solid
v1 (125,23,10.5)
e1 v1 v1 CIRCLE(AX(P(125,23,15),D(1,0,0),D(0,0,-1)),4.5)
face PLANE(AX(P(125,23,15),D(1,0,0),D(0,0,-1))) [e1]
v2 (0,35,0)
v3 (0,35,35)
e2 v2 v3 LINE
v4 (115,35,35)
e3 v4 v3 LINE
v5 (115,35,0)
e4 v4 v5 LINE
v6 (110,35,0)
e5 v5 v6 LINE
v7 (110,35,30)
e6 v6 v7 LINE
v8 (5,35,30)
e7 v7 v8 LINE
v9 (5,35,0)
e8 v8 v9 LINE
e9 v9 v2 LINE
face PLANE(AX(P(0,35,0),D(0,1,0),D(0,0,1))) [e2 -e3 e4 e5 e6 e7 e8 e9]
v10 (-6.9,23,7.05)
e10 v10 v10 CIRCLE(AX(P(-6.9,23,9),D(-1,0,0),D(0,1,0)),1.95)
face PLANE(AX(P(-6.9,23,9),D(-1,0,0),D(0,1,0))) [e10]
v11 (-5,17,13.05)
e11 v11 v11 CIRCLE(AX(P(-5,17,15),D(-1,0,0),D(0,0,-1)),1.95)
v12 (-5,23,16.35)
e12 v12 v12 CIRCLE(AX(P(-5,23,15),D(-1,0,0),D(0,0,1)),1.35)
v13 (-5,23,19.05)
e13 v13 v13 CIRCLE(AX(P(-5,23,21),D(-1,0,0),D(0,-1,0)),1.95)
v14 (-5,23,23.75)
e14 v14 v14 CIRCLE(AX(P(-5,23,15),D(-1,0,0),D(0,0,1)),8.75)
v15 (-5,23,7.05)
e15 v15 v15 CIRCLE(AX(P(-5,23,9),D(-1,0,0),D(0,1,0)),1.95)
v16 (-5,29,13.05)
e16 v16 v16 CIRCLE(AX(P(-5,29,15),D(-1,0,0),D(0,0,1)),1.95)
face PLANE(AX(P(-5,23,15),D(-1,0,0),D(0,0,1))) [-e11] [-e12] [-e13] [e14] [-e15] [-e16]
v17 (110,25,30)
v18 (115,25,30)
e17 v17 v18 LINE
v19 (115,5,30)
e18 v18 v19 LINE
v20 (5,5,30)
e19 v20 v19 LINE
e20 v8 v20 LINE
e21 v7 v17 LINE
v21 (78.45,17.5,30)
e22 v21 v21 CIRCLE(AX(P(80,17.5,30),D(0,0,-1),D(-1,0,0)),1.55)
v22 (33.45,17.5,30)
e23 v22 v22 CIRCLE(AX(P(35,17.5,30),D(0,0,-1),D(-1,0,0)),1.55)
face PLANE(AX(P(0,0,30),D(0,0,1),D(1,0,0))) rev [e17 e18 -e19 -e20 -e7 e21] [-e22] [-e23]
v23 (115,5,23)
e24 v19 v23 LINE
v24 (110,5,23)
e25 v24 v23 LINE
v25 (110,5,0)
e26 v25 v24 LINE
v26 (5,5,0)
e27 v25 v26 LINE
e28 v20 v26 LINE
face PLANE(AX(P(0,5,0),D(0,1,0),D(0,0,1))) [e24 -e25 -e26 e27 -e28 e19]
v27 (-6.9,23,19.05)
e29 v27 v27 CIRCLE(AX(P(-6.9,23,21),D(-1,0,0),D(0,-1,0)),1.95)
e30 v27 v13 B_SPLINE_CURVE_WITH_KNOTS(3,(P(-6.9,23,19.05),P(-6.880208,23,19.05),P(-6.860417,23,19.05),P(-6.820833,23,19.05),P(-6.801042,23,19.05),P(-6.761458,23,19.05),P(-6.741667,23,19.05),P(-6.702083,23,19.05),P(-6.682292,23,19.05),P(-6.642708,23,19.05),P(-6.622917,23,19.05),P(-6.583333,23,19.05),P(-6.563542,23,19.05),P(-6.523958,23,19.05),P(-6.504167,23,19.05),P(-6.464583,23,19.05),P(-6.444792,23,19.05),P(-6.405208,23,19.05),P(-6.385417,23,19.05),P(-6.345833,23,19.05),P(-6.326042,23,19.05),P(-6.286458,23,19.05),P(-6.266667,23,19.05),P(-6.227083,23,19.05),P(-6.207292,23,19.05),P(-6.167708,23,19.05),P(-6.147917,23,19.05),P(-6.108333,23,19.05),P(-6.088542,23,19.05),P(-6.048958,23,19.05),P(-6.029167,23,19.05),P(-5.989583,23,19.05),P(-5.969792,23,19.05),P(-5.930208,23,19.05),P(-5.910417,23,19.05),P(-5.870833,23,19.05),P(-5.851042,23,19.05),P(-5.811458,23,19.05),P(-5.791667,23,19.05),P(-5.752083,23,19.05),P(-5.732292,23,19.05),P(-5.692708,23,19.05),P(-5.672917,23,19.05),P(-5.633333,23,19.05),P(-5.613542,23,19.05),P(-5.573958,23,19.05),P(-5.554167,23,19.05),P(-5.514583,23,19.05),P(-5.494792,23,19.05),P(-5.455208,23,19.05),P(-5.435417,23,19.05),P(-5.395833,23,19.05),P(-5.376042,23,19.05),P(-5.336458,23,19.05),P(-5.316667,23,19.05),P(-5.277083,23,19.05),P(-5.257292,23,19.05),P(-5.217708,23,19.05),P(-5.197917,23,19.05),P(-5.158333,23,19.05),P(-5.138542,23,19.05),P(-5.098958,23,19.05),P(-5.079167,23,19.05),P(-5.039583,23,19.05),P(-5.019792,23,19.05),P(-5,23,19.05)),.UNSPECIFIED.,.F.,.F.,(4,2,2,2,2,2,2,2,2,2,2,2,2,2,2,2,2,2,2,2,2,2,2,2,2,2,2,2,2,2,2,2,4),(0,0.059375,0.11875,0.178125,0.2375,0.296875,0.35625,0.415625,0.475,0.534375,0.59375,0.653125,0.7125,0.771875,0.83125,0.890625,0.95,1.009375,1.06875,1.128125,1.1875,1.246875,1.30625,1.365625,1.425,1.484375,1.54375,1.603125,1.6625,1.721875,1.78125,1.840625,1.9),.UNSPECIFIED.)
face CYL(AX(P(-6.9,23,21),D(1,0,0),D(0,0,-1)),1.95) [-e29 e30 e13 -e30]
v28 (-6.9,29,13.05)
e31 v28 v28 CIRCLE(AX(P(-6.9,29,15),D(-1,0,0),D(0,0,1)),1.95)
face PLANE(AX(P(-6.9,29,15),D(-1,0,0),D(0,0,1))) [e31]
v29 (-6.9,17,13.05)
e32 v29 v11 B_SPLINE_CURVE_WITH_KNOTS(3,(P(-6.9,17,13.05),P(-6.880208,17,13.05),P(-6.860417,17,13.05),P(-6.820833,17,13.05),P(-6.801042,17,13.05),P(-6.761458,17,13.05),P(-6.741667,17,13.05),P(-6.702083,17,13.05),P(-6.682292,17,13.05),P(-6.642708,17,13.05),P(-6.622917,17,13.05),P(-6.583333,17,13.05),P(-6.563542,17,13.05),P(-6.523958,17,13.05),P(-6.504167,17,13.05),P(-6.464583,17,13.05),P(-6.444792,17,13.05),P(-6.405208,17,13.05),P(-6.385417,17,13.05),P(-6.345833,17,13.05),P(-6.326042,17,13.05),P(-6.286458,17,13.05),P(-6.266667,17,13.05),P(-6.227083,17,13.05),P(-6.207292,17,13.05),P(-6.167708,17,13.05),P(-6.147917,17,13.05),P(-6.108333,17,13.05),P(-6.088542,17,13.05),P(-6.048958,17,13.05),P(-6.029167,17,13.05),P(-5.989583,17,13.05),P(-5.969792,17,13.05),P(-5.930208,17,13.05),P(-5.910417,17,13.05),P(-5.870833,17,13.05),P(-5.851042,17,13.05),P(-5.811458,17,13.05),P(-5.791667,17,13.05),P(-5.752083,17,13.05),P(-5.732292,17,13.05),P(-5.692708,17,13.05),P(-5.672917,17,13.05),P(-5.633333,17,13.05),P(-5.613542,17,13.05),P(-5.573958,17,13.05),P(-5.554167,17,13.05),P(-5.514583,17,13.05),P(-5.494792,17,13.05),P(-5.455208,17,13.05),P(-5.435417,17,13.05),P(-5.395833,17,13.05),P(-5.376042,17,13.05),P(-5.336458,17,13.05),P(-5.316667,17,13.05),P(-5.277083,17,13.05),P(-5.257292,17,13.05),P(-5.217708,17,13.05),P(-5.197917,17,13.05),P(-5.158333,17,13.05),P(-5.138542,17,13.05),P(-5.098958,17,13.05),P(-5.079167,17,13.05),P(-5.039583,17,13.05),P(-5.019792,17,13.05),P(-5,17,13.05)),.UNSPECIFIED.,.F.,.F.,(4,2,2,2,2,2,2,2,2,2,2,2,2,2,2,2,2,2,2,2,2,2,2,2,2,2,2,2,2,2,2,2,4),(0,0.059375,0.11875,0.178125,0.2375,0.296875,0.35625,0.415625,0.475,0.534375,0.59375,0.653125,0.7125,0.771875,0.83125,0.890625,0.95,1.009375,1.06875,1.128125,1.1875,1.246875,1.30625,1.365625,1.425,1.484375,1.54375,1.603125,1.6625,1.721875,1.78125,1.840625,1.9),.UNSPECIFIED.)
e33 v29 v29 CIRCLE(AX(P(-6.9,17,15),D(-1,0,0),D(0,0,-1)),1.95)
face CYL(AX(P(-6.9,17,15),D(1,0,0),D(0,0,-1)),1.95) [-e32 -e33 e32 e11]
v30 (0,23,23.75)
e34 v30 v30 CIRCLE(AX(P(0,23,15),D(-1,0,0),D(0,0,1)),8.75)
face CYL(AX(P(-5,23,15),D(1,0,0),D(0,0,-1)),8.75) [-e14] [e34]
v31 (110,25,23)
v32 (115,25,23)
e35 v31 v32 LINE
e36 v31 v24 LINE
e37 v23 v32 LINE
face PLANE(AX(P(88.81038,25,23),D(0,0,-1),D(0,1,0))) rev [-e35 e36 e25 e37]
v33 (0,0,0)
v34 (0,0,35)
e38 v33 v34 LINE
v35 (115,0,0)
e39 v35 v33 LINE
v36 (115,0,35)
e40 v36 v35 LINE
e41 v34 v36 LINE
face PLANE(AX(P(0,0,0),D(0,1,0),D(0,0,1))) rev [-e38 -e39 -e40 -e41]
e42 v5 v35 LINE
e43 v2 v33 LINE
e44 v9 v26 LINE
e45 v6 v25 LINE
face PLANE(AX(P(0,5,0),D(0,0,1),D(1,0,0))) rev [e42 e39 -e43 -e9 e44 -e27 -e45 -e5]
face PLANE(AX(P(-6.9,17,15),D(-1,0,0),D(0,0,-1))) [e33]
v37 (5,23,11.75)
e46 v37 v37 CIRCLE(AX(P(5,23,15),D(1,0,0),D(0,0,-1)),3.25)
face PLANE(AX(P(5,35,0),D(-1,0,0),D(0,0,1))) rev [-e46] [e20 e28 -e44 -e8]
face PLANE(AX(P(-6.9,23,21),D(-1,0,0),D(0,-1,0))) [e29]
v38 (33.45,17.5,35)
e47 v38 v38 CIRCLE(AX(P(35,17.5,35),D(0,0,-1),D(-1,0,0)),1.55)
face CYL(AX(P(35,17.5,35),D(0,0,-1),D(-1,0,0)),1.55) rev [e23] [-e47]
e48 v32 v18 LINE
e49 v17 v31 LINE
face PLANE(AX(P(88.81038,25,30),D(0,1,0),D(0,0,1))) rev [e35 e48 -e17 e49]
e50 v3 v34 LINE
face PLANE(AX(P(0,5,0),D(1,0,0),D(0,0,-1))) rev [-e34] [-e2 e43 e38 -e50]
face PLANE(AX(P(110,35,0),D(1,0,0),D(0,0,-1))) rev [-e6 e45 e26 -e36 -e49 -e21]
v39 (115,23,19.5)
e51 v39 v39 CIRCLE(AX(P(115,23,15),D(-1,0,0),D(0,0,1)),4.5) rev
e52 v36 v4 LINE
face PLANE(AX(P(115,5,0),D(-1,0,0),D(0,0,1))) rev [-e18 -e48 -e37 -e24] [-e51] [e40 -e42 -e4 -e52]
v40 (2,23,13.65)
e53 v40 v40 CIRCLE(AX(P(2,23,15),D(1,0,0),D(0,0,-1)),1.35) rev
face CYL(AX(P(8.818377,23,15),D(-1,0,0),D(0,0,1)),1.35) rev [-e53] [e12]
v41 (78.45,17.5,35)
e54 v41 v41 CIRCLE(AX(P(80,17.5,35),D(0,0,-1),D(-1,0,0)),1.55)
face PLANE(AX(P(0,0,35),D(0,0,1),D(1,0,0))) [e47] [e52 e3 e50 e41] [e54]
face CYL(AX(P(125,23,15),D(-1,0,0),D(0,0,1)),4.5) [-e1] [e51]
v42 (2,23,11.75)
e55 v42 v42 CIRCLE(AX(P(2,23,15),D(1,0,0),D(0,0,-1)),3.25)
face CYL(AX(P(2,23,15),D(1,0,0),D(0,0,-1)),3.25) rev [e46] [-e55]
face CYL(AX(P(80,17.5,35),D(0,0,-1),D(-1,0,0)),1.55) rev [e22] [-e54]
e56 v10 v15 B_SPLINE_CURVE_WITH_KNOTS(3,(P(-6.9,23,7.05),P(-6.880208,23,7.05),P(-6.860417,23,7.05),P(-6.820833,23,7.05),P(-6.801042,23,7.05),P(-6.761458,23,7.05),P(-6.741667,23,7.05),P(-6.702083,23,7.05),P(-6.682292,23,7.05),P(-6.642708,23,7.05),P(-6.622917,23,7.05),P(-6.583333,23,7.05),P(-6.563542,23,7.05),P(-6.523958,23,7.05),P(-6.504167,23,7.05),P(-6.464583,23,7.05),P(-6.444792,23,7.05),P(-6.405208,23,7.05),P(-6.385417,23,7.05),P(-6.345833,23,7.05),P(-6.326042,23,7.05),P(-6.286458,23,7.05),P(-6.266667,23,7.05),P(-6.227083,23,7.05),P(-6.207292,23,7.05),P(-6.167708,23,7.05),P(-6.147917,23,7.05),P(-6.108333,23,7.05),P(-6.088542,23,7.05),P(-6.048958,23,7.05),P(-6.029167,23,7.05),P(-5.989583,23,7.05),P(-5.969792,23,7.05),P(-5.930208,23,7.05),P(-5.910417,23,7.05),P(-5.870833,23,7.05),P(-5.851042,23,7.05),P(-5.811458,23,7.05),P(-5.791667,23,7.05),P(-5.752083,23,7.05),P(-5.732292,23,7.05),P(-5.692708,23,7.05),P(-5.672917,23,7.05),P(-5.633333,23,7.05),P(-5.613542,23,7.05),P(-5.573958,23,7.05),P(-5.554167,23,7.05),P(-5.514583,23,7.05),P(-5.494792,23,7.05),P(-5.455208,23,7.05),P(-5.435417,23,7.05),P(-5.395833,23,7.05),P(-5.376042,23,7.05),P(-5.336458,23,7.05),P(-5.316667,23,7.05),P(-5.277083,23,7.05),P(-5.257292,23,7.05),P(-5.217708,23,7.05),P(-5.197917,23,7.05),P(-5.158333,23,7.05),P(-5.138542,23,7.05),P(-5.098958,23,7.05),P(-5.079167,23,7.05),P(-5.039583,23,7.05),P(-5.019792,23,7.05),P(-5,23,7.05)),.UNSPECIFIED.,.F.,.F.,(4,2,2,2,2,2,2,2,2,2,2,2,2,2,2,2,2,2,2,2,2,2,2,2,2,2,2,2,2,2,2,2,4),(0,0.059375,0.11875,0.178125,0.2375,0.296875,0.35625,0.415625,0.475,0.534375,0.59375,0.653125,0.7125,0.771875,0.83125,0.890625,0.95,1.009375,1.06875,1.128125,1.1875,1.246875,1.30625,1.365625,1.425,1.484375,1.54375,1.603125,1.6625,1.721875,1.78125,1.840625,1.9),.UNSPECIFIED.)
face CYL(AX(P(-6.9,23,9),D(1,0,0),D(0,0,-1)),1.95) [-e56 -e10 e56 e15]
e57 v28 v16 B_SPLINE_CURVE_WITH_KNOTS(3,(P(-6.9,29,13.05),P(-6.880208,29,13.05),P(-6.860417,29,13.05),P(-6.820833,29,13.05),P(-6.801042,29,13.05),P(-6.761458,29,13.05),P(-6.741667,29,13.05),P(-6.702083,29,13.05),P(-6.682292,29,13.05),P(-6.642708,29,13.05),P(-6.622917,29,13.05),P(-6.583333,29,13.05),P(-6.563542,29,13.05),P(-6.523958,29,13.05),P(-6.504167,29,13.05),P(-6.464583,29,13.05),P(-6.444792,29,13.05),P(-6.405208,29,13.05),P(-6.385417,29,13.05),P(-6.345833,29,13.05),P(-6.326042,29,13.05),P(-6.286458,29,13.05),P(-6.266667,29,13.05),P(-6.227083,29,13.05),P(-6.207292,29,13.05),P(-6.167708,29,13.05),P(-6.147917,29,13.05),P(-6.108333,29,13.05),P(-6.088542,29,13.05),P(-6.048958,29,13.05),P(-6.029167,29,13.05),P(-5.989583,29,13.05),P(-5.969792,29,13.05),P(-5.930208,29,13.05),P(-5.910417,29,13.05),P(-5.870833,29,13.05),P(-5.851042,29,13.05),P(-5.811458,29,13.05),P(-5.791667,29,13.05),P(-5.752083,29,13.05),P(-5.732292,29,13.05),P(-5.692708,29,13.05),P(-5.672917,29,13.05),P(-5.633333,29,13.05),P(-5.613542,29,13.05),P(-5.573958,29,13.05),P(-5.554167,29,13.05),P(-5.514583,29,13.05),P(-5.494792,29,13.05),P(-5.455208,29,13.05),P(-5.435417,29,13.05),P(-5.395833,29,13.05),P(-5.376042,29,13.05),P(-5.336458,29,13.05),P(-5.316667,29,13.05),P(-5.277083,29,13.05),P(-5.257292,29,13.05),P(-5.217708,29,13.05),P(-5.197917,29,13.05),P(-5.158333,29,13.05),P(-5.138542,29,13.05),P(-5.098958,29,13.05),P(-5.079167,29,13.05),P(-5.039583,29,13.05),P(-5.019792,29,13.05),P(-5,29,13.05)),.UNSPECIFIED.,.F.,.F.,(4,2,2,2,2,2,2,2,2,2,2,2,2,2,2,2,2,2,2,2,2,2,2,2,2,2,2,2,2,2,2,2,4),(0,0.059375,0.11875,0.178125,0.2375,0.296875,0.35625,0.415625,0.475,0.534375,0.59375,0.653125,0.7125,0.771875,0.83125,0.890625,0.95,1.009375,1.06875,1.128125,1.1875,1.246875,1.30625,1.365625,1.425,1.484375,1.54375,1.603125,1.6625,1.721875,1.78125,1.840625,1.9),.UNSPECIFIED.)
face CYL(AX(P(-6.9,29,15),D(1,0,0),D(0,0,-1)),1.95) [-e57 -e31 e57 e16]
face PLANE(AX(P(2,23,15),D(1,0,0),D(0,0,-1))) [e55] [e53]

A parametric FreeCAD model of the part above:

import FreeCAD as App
import Part
import Sketcher

V = App.Vector

doc = App.newDocument("Part")
body = doc.addObject("PartDesign::Body", "Body")

sketch1 = doc.addObject("Sketcher::SketchObject", "Sketch")
body.addObject(sketch1)
sketch1.AttachmentSupport = (doc.XZ_Plane, [""])
sketch1.MapMode = "FlatFace"
sketch1.addGeometry([
    Part.LineSegment(V(0, 0, 0), V(0, 30, 0)),
    Part.LineSegment(V(0, 30, 0), V(115, 30, 0)),
    Part.LineSegment(V(115, 30, 0), V(115, 0, 0)),
    Part.LineSegment(V(115, 0, 0), V(0, 0, 0)),
], False)
sketch1.addConstraint([
    Sketcher.Constraint("Coincident", 0, 2, 1, 1),
    Sketcher.Constraint("Coincident", 1, 2, 2, 1),
    Sketcher.Constraint("Coincident", 2, 2, 3, 1),
    Sketcher.Constraint("Coincident", 3, 2, 0, 1),
    Sketcher.Constraint("Vertical", 0),
    Sketcher.Constraint("Horizontal", 1),
    Sketcher.Constraint("Vertical", 2),
    Sketcher.Constraint("Horizontal", 3),
    Sketcher.Constraint("Coincident", 3, 2, -1, 1),
    Sketcher.Constraint("DistanceX", 1, 1, 1, 2, 115.0),
    Sketcher.Constraint("DistanceY", 0, 1, 0, 2, 30.0),
])
pad1 = doc.addObject("PartDesign::Pad", "Pad")
body.addObject(pad1)
pad1.Profile = sketch1
pad1.Length = 5
pad1.Reversed = True

sketch2 = doc.addObject("Sketcher::SketchObject", "Sketch001")
body.addObject(sketch2)
sketch2.AttachmentSupport = (doc.XZ_Plane, [""])
sketch2.MapMode = "FlatFace"
sketch2.AttachmentOffset = App.Placement(V(0, 0, -5), App.Rotation())
sketch2.addGeometry([
    Part.LineSegment(V(0, 0, 0), V(0, 30, 0)),
    Part.LineSegment(V(0, 30, 0), V(5, 30, 0)),
    Part.LineSegment(V(5, 30, 0), V(5, 0, 0)),
    Part.LineSegment(V(5, 0, 0), V(0, 0, 0)),
    Part.LineSegment(V(110, 0, 0), V(110, 30, 0)),
    Part.LineSegment(V(110, 30, 0), V(115, 30, 0)),
    Part.LineSegment(V(115, 30, 0), V(115, 0, 0)),
    Part.LineSegment(V(115, 0, 0), V(110, 0, 0)),
], False)
sketch2.addConstraint([
    Sketcher.Constraint("Coincident", 0, 2, 1, 1),
    Sketcher.Constraint("Coincident", 1, 2, 2, 1),
    Sketcher.Constraint("Coincident", 2, 2, 3, 1),
    Sketcher.Constraint("Coincident", 3, 2, 0, 1),
    Sketcher.Constraint("Coincident", 4, 2, 5, 1),
    Sketcher.Constraint("Coincident", 5, 2, 6, 1),
    Sketcher.Constraint("Coincident", 6, 2, 7, 1),
    Sketcher.Constraint("Coincident", 7, 2, 4, 1),
    Sketcher.Constraint("Vertical", 0),
    Sketcher.Constraint("Horizontal", 1),
    Sketcher.Constraint("Vertical", 2),
    Sketcher.Constraint("Horizontal", 3),
    Sketcher.Constraint("Vertical", 4),
    Sketcher.Constraint("Horizontal", 5),
    Sketcher.Constraint("Vertical", 6),
    Sketcher.Constraint("Horizontal", 7),
    Sketcher.Constraint("Coincident", 3, 2, -1, 1),
    Sketcher.Constraint("PointOnObject", 6, 2, -1),
    Sketcher.Constraint("Horizontal", 1, 2, 4, 2),
    Sketcher.Constraint("Equal", 3, 5),
    Sketcher.Constraint("DistanceX", 1, 1, 1, 2, 5.0),
    Sketcher.Constraint("DistanceY", 0, 1, 0, 2, 30.0),
    Sketcher.Constraint("DistanceX", -1, 1, 4, 2, 110.0),
])
pad2 = doc.addObject("PartDesign::Pad", "Pad001")
body.addObject(pad2)
pad2.Profile = sketch2
pad2.Length = 30
pad2.Reversed = True

sketch3 = doc.addObject("Sketcher::SketchObject", "Sketch002")
body.addObject(sketch3)
sketch3.AttachmentSupport = (doc.YZ_Plane, [""])
sketch3.MapMode = "FlatFace"
sketch3.addGeometry(Part.Circle(V(23, 15, 0), V(0, 0, 1), 8.75), False)
sketch3.addConstraint([
    Sketcher.Constraint("Diameter", 0, 17.5),
    Sketcher.Constraint("DistanceX", -1, 1, 0, 3, 23.0),
    Sketcher.Constraint("DistanceY", -1, 1, 0, 3, 15.0),
])
pad3 = doc.addObject("PartDesign::Pad", "Pad002")
body.addObject(pad3)
pad3.Profile = sketch3
pad3.Length = 5
pad3.Reversed = True

sketch4 = doc.addObject("Sketcher::SketchObject", "Sketch003")
body.addObject(sketch4)
sketch4.AttachmentSupport = (doc.YZ_Plane, [""])
sketch4.MapMode = "FlatFace"
sketch4.AttachmentOffset = App.Placement(V(0, 0, -5), App.Rotation())
sketch4.addGeometry(Part.Circle(V(29, 15, 0), V(0, 0, 1), 1.95), False)
sketch4.addConstraint([
    Sketcher.Constraint("Diameter", 0, 3.9),
    Sketcher.Constraint("DistanceX", -1, 1, 0, 3, 29.0),
    Sketcher.Constraint("DistanceY", -1, 1, 0, 3, 15.0),
])
pad4 = doc.addObject("PartDesign::Pad", "Pad003")
body.addObject(pad4)
pad4.Profile = sketch4
pad4.Length = 1.9
pad4.Reversed = True
doc.recompute()

datumline = doc.addObject("PartDesign::Line", "DatumLine")
body.addObject(datumline)
datumline.Placement = App.Placement(V(0, 23, 15), App.Rotation(V(0, 0, 1), V(1, 0, 0)))
polarpattern = doc.addObject("PartDesign::PolarPattern", "PolarPattern")
body.addObject(polarpattern)
polarpattern.Originals = [pad4]
polarpattern.Axis = (datumline, [""])
polarpattern.Angle = 360
polarpattern.Occurrences = 4
body.Tip = polarpattern

sketch5 = doc.addObject("Sketcher::SketchObject", "Sketch004")
body.addObject(sketch5)
sketch5.AttachmentSupport = (doc.XY_Plane, [""])
sketch5.MapMode = "FlatFace"
sketch5.AttachmentOffset = App.Placement(V(0, 0, 30), App.Rotation())
sketch5.addGeometry([
    Part.LineSegment(V(0, 35, 0), V(0, 0, 0)),
    Part.LineSegment(V(0, 0, 0), V(115, 0, 0)),
    Part.LineSegment(V(115, 0, 0), V(115, 35, 0)),
    Part.LineSegment(V(115, 35, 0), V(0, 35, 0)),
], False)
sketch5.addConstraint([
    Sketcher.Constraint("Coincident", 0, 2, 1, 1),
    Sketcher.Constraint("Coincident", 1, 2, 2, 1),
    Sketcher.Constraint("Coincident", 2, 2, 3, 1),
    Sketcher.Constraint("Coincident", 3, 2, 0, 1),
    Sketcher.Constraint("Vertical", 0),
    Sketcher.Constraint("Horizontal", 1),
    Sketcher.Constraint("Vertical", 2),
    Sketcher.Constraint("Horizontal", 3),
    Sketcher.Constraint("Coincident", 0, 2, -1, 1),
    Sketcher.Constraint("DistanceX", 1, 1, 1, 2, 115.0),
    Sketcher.Constraint("DistanceY", 0, 2, 0, 1, 35.0),
])
pad5 = doc.addObject("PartDesign::Pad", "Pad004")
body.addObject(pad5)
pad5.Profile = sketch5
pad5.Length = 5

sketch6 = doc.addObject("Sketcher::SketchObject", "Sketch005")
body.addObject(sketch6)
sketch6.AttachmentSupport = (doc.XY_Plane, [""])
sketch6.MapMode = "FlatFace"
sketch6.AttachmentOffset = App.Placement(V(0, 0, 30), App.Rotation())
sketch6.addGeometry([
    Part.Circle(V(80, 17.5, 0), V(0, 0, 1), 1.55),
    Part.Circle(V(35, 17.5, 0), V(0, 0, 1), 1.55),
], False)
sketch6.addConstraint([
    Sketcher.Constraint("Equal", 0, 1),
    Sketcher.Constraint("Horizontal", 0, 3, 1, 3),
    Sketcher.Constraint("Diameter", 0, 3.1),
    Sketcher.Constraint("DistanceX", -1, 1, 0, 3, 80.0),
    Sketcher.Constraint("DistanceX", -1, 1, 1, 3, 35.0),
    Sketcher.Constraint("DistanceY", -1, 1, 0, 3, 17.5),
])
pocket1 = doc.addObject("PartDesign::Pocket", "Pocket")
body.addObject(pocket1)
pocket1.Profile = sketch6
pocket1.Type = "ThroughAll"
pocket1.Reversed = True

sketch7 = doc.addObject("Sketcher::SketchObject", "Sketch006")
body.addObject(sketch7)
sketch7.AttachmentSupport = (doc.YZ_Plane, [""])
sketch7.MapMode = "FlatFace"
sketch7.AttachmentOffset = App.Placement(V(0, 0, -5), App.Rotation())
sketch7.addGeometry(Part.Circle(V(23, 15, 0), V(0, 0, 1), 1.35), False)
sketch7.addConstraint([
    Sketcher.Constraint("Diameter", 0, 2.7),
    Sketcher.Constraint("DistanceX", -1, 1, 0, 3, 23.0),
    Sketcher.Constraint("DistanceY", -1, 1, 0, 3, 15.0),
])
pocket2 = doc.addObject("PartDesign::Pocket", "Pocket001")
body.addObject(pocket2)
pocket2.Profile = sketch7
pocket2.Length = 10
pocket2.Reversed = True

sketch8 = doc.addObject("Sketcher::SketchObject", "Sketch007")
body.addObject(sketch8)
sketch8.AttachmentSupport = (doc.YZ_Plane, [""])
sketch8.MapMode = "FlatFace"
sketch8.AttachmentOffset = App.Placement(V(0, 0, 5), App.Rotation())
sketch8.addGeometry(Part.Circle(V(23, 15, 0), V(0, 0, 1), 3.25), False)
sketch8.addConstraint([
    Sketcher.Constraint("Diameter", 0, 6.5),
    Sketcher.Constraint("DistanceX", -1, 1, 0, 3, 23.0),
    Sketcher.Constraint("DistanceY", -1, 1, 0, 3, 15.0),
])
pocket3 = doc.addObject("PartDesign::Pocket", "Pocket002")
body.addObject(pocket3)
pocket3.Profile = sketch8
pocket3.Length = 3

sketch9 = doc.addObject("Sketcher::SketchObject", "Sketch008")
body.addObject(sketch9)
sketch9.AttachmentSupport = (doc.YZ_Plane, [""])
sketch9.MapMode = "FlatFace"
sketch9.AttachmentOffset = App.Placement(V(0, 0, 115), App.Rotation())
sketch9.addGeometry([
    Part.LineSegment(V(25, 30, 0), V(5, 30, 0)),
    Part.LineSegment(V(5, 30, 0), V(5, 23, 0)),
    Part.LineSegment(V(5, 23, 0), V(25, 23, 0)),
    Part.LineSegment(V(25, 23, 0), V(25, 30, 0)),
], False)
sketch9.addConstraint([
    Sketcher.Constraint("Coincident", 0, 2, 1, 1),
    Sketcher.Constraint("Coincident", 1, 2, 2, 1),
    Sketcher.Constraint("Coincident", 2, 2, 3, 1),
    Sketcher.Constraint("Coincident", 3, 2, 0, 1),
    Sketcher.Constraint("Horizontal", 0),
    Sketcher.Constraint("Vertical", 1),
    Sketcher.Constraint("Horizontal", 2),
    Sketcher.Constraint("Vertical", 3),
    Sketcher.Constraint("DistanceX", 0, 2, 0, 1, 20.0),
    Sketcher.Constraint("DistanceY", 1, 2, 1, 1, 7.0),
    Sketcher.Constraint("DistanceX", -1, 1, 0, 2, 5.0),
    Sketcher.Constraint("DistanceY", -1, 1, 0, 2, 30.0),
])
pocket4 = doc.addObject("PartDesign::Pocket", "Pocket003")
body.addObject(pocket4)
pocket4.Profile = sketch9
pocket4.Length = 5

sketch10 = doc.addObject("Sketcher::SketchObject", "Sketch009")
body.addObject(sketch10)
sketch10.AttachmentSupport = (doc.YZ_Plane, [""])
sketch10.MapMode = "FlatFace"
sketch10.AttachmentOffset = App.Placement(V(0, 0, 115), App.Rotation())
sketch10.addGeometry(Part.Circle(V(23, 15, 0), V(0, 0, 1), 4.5), False)
sketch10.addConstraint([
    Sketcher.Constraint("Diameter", 0, 9.0),
    Sketcher.Constraint("DistanceX", -1, 1, 0, 3, 23.0),
    Sketcher.Constraint("DistanceY", -1, 1, 0, 3, 15.0),
])
pad6 = doc.addObject("PartDesign::Pad", "Pad005")
body.addObject(pad6)
pad6.Profile = sketch10
pad6.Length = 10

doc.recompute()
